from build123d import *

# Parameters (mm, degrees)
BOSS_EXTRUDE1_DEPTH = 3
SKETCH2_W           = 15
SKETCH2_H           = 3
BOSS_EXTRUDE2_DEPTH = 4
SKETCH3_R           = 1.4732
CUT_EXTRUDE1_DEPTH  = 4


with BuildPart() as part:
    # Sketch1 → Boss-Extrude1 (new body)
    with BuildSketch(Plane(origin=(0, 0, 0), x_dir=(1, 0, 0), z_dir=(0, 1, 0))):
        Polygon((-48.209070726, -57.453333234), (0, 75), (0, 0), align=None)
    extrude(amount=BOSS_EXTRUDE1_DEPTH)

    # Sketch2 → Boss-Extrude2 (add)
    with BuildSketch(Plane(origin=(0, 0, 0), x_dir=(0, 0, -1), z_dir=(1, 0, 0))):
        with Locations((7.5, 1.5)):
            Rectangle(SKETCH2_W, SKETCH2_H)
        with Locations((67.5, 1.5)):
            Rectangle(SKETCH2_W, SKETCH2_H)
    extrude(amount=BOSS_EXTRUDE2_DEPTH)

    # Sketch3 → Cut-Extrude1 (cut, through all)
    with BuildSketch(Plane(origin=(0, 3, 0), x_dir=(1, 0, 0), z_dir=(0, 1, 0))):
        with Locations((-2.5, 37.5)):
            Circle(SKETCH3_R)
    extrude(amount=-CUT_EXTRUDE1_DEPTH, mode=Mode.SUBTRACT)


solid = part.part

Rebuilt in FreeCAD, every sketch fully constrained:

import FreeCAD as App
import Part
import Sketcher
Q = App.Units.Quantity

doc = App.newDocument("Part")
params = doc.addObject("Spreadsheet::Sheet", "Params")
for row, (alias, value) in enumerate([
    ("sketch1_height", "75 mm"),
    ("pad1_length", "3 mm"),
    ("sketch2_width", "3 mm"),
    ("sketch2_height", "15 mm"),
    ("pad2_length", "4 mm"),
], start=1):
    params.set(f"A{row}", alias)
    params.set(f"B{row}", "=" + value)
    params.setAlias(f"B{row}", alias)

body = doc.addObject("PartDesign::Body", "Body")

sketch1 = body.newObject("Sketcher::SketchObject", "Sketch")
sketch1.AttachmentSupport = (doc.getObject("XZ_Plane"), [""])
sketch1.MapMode = "FlatFace"
sketch1.addGeometry([
    Part.LineSegment(App.Vector(0, -75, 0), App.Vector(-48.209071, 57.453333, 0)),
    Part.LineSegment(App.Vector(-48.209071, 57.453333, 0), App.Vector(0, 0, 0)),
    Part.LineSegment(App.Vector(0, 0, 0), App.Vector(0, -75, 0)),
], False)
sketch1.addConstraint([
    Sketcher.Constraint("Coincident", 0, 2, 1, 1),
    Sketcher.Constraint("Coincident", 1, 2, 2, 1),
    Sketcher.Constraint("Coincident", 2, 2, 0, 1),
    Sketcher.Constraint("Vertical", 2),
    Sketcher.Constraint("Coincident", 1, 2, -1, 1),
    Sketcher.Constraint("DistanceY", 2, 2, 2, 1, 75.0),
    Sketcher.Constraint("Angle", 0, Q("110 deg")),
    Sketcher.Constraint("Angle", 1, Q("-50 deg")),
])
sketch1.setExpression("Constraints[5]", "Params.sketch1_height")
pad1 = body.newObject("PartDesign::Pad", "Pad")
pad1.Profile = sketch1
pad1.setExpression("Length", "Params.pad1_length")
pad1.Reversed = True

sketch2 = body.newObject("Sketcher::SketchObject", "Sketch001")
sketch2.AttachmentSupport = (doc.getObject("YZ_Plane"), [""])
sketch2.MapMode = "FlatFace"
sketch2.addGeometry([
    Part.LineSegment(App.Vector(3, 0, 0), App.Vector(0, 0, 0)),
    Part.LineSegment(App.Vector(0, 0, 0), App.Vector(0, -15, 0)),
    Part.LineSegment(App.Vector(0, -15, 0), App.Vector(3, -15, 0)),
    Part.LineSegment(App.Vector(3, -15, 0), App.Vector(3, 0, 0)),
    Part.LineSegment(App.Vector(3, -60, 0), App.Vector(0, -60, 0)),
    Part.LineSegment(App.Vector(0, -60, 0), App.Vector(0, -75, 0)),
    Part.LineSegment(App.Vector(0, -75, 0), App.Vector(3, -75, 0)),
    Part.LineSegment(App.Vector(3, -75, 0), App.Vector(3, -60, 0)),
], False)
sketch2.addConstraint([
    Sketcher.Constraint("Coincident", 0, 2, 1, 1),
    Sketcher.Constraint("Coincident", 1, 2, 2, 1),
    Sketcher.Constraint("Coincident", 2, 2, 3, 1),
    Sketcher.Constraint("Coincident", 3, 2, 0, 1),
    Sketcher.Constraint("Coincident", 4, 2, 5, 1),
    Sketcher.Constraint("Coincident", 5, 2, 6, 1),
    Sketcher.Constraint("Coincident", 6, 2, 7, 1),
    Sketcher.Constraint("Coincident", 7, 2, 4, 1),
    Sketcher.Constraint("Horizontal", 0),
    Sketcher.Constraint("Vertical", 1),
    Sketcher.Constraint("Horizontal", 2),
    Sketcher.Constraint("Vertical", 3),
    Sketcher.Constraint("Horizontal", 4),
    Sketcher.Constraint("Vertical", 5),
    Sketcher.Constraint("Horizontal", 6),
    Sketcher.Constraint("Vertical", 7),
    Sketcher.Constraint("Coincident", 0, 2, -1, 1),
    Sketcher.Constraint("PointOnObject", 4, 2, -2),
    Sketcher.Constraint("Vertical", 3, 2, 6, 2),
    Sketcher.Constraint("Equal", 3, 5),
    Sketcher.Constraint("DistanceX", 0, 2, 0, 1, 3.0),
    Sketcher.Constraint("DistanceY", 1, 2, 1, 1, 15.0),
    Sketcher.Constraint("DistanceY", 4, 2, -1, 1, 60.0),
])
sketch2.setExpression("Constraints[20]", "Params.sketch2_width")
sketch2.setExpression("Constraints[21]", "Params.sketch2_height")
pad2 = body.newObject("PartDesign::Pad", "Pad001")
pad2.Profile = sketch2
pad2.setExpression("Length", "Params.pad2_length")

sketch3 = body.newObject("Sketcher::SketchObject", "Sketch002")
sketch3.AttachmentSupport = (doc.getObject("XZ_Plane"), [""])
sketch3.MapMode = "FlatFace"
sketch3.AttachmentOffset = App.Placement(App.Vector(0, 0, -3), App.Rotation())
sketch3.addGeometry(Part.Circle(App.Vector(-2.5, -37.5, 0), App.Vector(0, 0, 1), 1.4732), False)
sketch3.addConstraint([
    Sketcher.Constraint("Diameter", 0, 2.9464),
    Sketcher.Constraint("DistanceX", 0, 3, -1, 1, 2.5),
    Sketcher.Constraint("DistanceY", 0, 3, -1, 1, 37.5),
])
pocket1 = body.newObject("PartDesign::Pocket", "Pocket")
pocket1.Profile = sketch3
pocket1.Type = "ThroughAll"
pocket1.Reversed = True

doc.recompute()
